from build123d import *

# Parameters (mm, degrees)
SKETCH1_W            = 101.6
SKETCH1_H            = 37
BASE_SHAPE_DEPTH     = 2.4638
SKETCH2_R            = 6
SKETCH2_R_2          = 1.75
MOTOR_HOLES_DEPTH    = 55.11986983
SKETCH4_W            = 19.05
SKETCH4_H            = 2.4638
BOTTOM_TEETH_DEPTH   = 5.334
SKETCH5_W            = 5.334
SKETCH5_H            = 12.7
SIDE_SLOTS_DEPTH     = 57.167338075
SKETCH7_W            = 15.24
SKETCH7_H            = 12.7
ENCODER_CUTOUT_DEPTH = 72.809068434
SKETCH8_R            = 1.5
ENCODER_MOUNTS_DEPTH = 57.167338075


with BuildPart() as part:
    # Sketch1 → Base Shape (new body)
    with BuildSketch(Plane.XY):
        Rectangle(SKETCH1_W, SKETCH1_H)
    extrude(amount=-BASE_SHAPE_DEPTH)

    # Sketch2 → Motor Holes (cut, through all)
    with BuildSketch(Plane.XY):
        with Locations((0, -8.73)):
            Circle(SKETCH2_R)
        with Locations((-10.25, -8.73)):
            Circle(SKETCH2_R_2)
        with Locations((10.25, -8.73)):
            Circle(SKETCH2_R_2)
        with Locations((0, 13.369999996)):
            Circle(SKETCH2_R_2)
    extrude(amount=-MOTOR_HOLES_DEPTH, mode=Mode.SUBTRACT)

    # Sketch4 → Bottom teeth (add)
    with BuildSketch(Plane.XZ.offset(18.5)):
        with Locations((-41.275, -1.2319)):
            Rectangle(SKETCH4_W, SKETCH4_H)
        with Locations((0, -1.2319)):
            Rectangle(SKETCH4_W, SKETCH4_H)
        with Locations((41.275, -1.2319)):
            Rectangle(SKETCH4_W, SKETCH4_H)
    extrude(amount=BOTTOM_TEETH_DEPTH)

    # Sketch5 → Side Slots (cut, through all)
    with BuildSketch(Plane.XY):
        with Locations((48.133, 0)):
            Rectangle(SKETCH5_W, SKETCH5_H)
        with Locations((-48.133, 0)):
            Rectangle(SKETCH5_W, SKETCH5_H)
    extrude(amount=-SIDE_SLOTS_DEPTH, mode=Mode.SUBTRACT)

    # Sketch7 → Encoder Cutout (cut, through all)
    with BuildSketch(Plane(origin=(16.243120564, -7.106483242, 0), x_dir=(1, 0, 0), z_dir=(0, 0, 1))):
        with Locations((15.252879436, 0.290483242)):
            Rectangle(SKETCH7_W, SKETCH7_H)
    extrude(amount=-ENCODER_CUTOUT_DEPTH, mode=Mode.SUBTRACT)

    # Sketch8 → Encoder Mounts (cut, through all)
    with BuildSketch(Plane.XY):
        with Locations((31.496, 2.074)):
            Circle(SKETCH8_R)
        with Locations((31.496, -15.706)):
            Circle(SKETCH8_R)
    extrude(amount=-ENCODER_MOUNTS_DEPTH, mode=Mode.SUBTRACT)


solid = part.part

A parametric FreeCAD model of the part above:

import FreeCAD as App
import Part
import Sketcher
from FreeCAD import Vector
Q = App.Units.Quantity


def add_polygon(sketch, points):
    """Adds a closed chain of lines whose ends are joined by coincident constraints."""
    first, n = sketch.GeometryCount, len(points)
    for a, b in zip(points, points[1:] + points[:1]):
        sketch.addGeometry(Part.LineSegment(App.Vector(*a, 0), App.Vector(*b, 0)), False)
    for i in range(n):
        sketch.addConstraint(Sketcher.Constraint("Coincident", first + i, 2, first + (i + 1) % n, 1))

doc = App.newDocument("Part")
body = doc.addObject("PartDesign::Body", "Body")

sketch1 = body.newObject("Sketcher::SketchObject", "Sketch")
sketch1.AttachmentSupport = (doc.getObject("XY_Plane"), [""])
sketch1.MapMode = "FlatFace"
add_polygon(sketch1, [(-51, 18), (-51, -18), (51, -18), (51, 18)])
sketch1.addConstraint([
    Sketcher.Constraint("Vertical", 0),
    Sketcher.Constraint("Horizontal", 1),
    Sketcher.Constraint("Vertical", 2),
    Sketcher.Constraint("Horizontal", 3),
    Sketcher.Constraint("Symmetric", 0, 2, 2, 2, -1, 1),
    Sketcher.Constraint("DistanceX", 1, 1, 1, 2, Q("4 in")),
    Sketcher.Constraint("DistanceY", 0, 2, 0, 1, Q("37 mm")),
])
pad1 = body.newObject("PartDesign::Pad", "Pad")
pad1.Profile = sketch1
pad1.Length = Q("0.097 in")
pad1.Reversed = True

sketch2 = body.newObject("Sketcher::SketchObject", "Sketch001")
sketch2.AttachmentSupport = (doc.getObject("XY_Plane"), [""])
sketch2.MapMode = "FlatFace"
sketch2.addGeometry([
    Part.Circle(Vector(0, -8.7, 0), Vector(0, 0, 1), 6),
    Part.Circle(Vector(-10.2, -8.7, 0), Vector(0, 0, 1), 1.8),
    Part.Circle(Vector(10.2, -8.7, 0), Vector(0, 0, 1), 1.8),
    Part.Circle(Vector(0, 13.4, 0), Vector(0, 0, 1), 1.8),
], False)
sketch2.addConstraint([
    Sketcher.Constraint("Equal", 1, 2),
    Sketcher.Constraint("Equal", 2, 3),
    Sketcher.Constraint("Symmetric", 1, 3, 2, 3, -2),
    Sketcher.Constraint("PointOnObject", 0, 3, -2),
    Sketcher.Constraint("PointOnObject", 3, 3, -2),
    Sketcher.Constraint("Horizontal", 0, 3, 1, 3),
    Sketcher.Constraint("Diameter", 0, Q("12 mm")),
    Sketcher.Constraint("Diameter", 1, Q("3.5 mm")),
    Sketcher.Constraint("DistanceY", 0, 3, -1, 1, Q("8.73 mm")),
    Sketcher.Constraint("DistanceX", 1, 3, -1, 1, Q("10.25 mm")),
    Sketcher.Constraint("DistanceY", -1, 1, 3, 3, Q("13.37 mm")),
])
pocket1 = body.newObject("PartDesign::Pocket", "Pocket")
pocket1.Profile = sketch2
pocket1.Type = "ThroughAll"

sketch3 = body.newObject("Sketcher::SketchObject", "Sketch002")
sketch3.AttachmentSupport = (doc.getObject("XZ_Plane"), [""])
sketch3.MapMode = "FlatFace"
sketch3.AttachmentOffset = App.Placement(Vector(0, 0, 18.5), App.Rotation())
add_polygon(sketch3, [(-50.8, 0), (-50.8, -2.5), (-31.8, -2.5), (-31.8, 0)])
add_polygon(sketch3, [(-9.5, 0), (-9.5, -2.5), (9.5, -2.5), (9.5, 0)])
add_polygon(sketch3, [(31.8, 0), (31.8, -2.5), (50.8, -2.5), (50.8, 0)])
sketch3.addConstraint([
    Sketcher.Constraint("Vertical", 0),
    Sketcher.Constraint("Horizontal", 1),
    Sketcher.Constraint("Vertical", 2),
    Sketcher.Constraint("Horizontal", 3),
    Sketcher.Constraint("Vertical", 4),
    Sketcher.Constraint("Horizontal", 5),
    Sketcher.Constraint("Vertical", 6),
    Sketcher.Constraint("Horizontal", 7),
    Sketcher.Constraint("Vertical", 8),
    Sketcher.Constraint("Horizontal", 9),
    Sketcher.Constraint("Vertical", 10),
    Sketcher.Constraint("Horizontal", 11),
    Sketcher.Constraint("Symmetric", 6, 2, 7, 2, -1, 1),
    Sketcher.Constraint("Symmetric", 3, 2, 10, 2, -1, 1),
    Sketcher.Constraint("Symmetric", 1, 2, 8, 2, -2),
    Sketcher.Constraint("PointOnObject", 2, 2, -1),
    Sketcher.Constraint("Horizontal", 1, 2, 4, 2),
    Sketcher.Constraint("Equal", 3, 5),
    Sketcher.Constraint("DistanceX", 0, 2, -1, 1, Q("2 in")),
    Sketcher.Constraint("DistanceX", 1, 1, 1, 2, Q("0.75 in")),
    Sketcher.Constraint("DistanceY", 0, 2, 0, 1, Q("0.097 in")),
])
pad2 = body.newObject("PartDesign::Pad", "Pad001")
pad2.Profile = sketch3
pad2.Length = Q("0.21 in")

sketch4 = body.newObject("Sketcher::SketchObject", "Sketch003")
sketch4.AttachmentSupport = (doc.getObject("XY_Plane"), [""])
sketch4.MapMode = "FlatFace"
add_polygon(sketch4, [(45, 6), (45, -6), (51, -6), (51, 6)])
add_polygon(sketch4, [(-51, 6), (-51, -6), (-45, -6), (-45, 6)])
sketch4.addConstraint([
    Sketcher.Constraint("Vertical", 0),
    Sketcher.Constraint("Horizontal", 1),
    Sketcher.Constraint("Vertical", 2),
    Sketcher.Constraint("Horizontal", 3),
    Sketcher.Constraint("Vertical", 4),
    Sketcher.Constraint("Horizontal", 5),
    Sketcher.Constraint("Vertical", 6),
    Sketcher.Constraint("Horizontal", 7),
    Sketcher.Constraint("Symmetric", 2, 2, 4, 2, -1, 1),
    Sketcher.Constraint("Symmetric", 0, 2, 6, 2, -1, 1),
    Sketcher.Constraint("Horizontal", 1, 2, 4, 2),
    Sketcher.Constraint("DistanceY", 0, 2, 0, 1, Q("0.5 in")),
    Sketcher.Constraint("DistanceX", -1, 1, 1, 2, Q("2 in")),
    Sketcher.Constraint("DistanceX", 1, 1, 1, 2, Q("0.21 in")),
])
pocket2 = body.newObject("PartDesign::Pocket", "Pocket001")
pocket2.Profile = sketch4
pocket2.Type = "ThroughAll"

sketch5 = body.newObject("Sketcher::SketchObject", "Sketch004")
sketch5.AttachmentSupport = (doc.getObject("XY_Plane"), [""])
sketch5.MapMode = "FlatFace"
add_polygon(sketch5, [(24, 0), (24, -13), (39, -13), (39, 0)])
sketch5.addConstraint([
    Sketcher.Constraint("Vertical", 0),
    Sketcher.Constraint("Horizontal", 1),
    Sketcher.Constraint("Vertical", 2),
    Sketcher.Constraint("Horizontal", 3),
    Sketcher.Constraint("DistanceX", 1, 1, 1, 2, Q("0.6 in")),
    Sketcher.Constraint("DistanceY", 0, 2, 0, 1, Q("0.5 in")),
    Sketcher.Constraint("DistanceX", -1, 1, 0, 2, Q("0.94 in")),
    Sketcher.Constraint("DistanceY", 0, 2, -1, 1, Q("13.166 mm")),
])
pocket3 = body.newObject("PartDesign::Pocket", "Pocket002")
pocket3.Profile = sketch5
pocket3.Type = "ThroughAll"

sketch6 = body.newObject("Sketcher::SketchObject", "Sketch005")
sketch6.AttachmentSupport = (doc.getObject("XY_Plane"), [""])
sketch6.MapMode = "FlatFace"
sketch6.addGeometry([
    Part.Circle(Vector(31.5, 2.1, 0), Vector(0, 0, 1), 1.5),
    Part.Circle(Vector(31.5, -15.7, 0), Vector(0, 0, 1), 1.5),
], False)
sketch6.addConstraint([
    Sketcher.Constraint("Equal", 0, 1),
    Sketcher.Constraint("Vertical", 0, 3, 1, 3),
    Sketcher.Constraint("DistanceY", 1, 3, 0, 3, Q("0.7 in")),
    Sketcher.Constraint("Diameter", 0, Q("3 mm")),
    Sketcher.Constraint("DistanceX", -1, 1, 0, 3, Q("1.24 in")),
    Sketcher.Constraint("DistanceY", -1, 1, 0, 3, Q("2.074 mm")),
])
pocket4 = body.newObject("PartDesign::Pocket", "Pocket003")
pocket4.Profile = sketch6
pocket4.Type = "ThroughAll"

doc.recompute()
